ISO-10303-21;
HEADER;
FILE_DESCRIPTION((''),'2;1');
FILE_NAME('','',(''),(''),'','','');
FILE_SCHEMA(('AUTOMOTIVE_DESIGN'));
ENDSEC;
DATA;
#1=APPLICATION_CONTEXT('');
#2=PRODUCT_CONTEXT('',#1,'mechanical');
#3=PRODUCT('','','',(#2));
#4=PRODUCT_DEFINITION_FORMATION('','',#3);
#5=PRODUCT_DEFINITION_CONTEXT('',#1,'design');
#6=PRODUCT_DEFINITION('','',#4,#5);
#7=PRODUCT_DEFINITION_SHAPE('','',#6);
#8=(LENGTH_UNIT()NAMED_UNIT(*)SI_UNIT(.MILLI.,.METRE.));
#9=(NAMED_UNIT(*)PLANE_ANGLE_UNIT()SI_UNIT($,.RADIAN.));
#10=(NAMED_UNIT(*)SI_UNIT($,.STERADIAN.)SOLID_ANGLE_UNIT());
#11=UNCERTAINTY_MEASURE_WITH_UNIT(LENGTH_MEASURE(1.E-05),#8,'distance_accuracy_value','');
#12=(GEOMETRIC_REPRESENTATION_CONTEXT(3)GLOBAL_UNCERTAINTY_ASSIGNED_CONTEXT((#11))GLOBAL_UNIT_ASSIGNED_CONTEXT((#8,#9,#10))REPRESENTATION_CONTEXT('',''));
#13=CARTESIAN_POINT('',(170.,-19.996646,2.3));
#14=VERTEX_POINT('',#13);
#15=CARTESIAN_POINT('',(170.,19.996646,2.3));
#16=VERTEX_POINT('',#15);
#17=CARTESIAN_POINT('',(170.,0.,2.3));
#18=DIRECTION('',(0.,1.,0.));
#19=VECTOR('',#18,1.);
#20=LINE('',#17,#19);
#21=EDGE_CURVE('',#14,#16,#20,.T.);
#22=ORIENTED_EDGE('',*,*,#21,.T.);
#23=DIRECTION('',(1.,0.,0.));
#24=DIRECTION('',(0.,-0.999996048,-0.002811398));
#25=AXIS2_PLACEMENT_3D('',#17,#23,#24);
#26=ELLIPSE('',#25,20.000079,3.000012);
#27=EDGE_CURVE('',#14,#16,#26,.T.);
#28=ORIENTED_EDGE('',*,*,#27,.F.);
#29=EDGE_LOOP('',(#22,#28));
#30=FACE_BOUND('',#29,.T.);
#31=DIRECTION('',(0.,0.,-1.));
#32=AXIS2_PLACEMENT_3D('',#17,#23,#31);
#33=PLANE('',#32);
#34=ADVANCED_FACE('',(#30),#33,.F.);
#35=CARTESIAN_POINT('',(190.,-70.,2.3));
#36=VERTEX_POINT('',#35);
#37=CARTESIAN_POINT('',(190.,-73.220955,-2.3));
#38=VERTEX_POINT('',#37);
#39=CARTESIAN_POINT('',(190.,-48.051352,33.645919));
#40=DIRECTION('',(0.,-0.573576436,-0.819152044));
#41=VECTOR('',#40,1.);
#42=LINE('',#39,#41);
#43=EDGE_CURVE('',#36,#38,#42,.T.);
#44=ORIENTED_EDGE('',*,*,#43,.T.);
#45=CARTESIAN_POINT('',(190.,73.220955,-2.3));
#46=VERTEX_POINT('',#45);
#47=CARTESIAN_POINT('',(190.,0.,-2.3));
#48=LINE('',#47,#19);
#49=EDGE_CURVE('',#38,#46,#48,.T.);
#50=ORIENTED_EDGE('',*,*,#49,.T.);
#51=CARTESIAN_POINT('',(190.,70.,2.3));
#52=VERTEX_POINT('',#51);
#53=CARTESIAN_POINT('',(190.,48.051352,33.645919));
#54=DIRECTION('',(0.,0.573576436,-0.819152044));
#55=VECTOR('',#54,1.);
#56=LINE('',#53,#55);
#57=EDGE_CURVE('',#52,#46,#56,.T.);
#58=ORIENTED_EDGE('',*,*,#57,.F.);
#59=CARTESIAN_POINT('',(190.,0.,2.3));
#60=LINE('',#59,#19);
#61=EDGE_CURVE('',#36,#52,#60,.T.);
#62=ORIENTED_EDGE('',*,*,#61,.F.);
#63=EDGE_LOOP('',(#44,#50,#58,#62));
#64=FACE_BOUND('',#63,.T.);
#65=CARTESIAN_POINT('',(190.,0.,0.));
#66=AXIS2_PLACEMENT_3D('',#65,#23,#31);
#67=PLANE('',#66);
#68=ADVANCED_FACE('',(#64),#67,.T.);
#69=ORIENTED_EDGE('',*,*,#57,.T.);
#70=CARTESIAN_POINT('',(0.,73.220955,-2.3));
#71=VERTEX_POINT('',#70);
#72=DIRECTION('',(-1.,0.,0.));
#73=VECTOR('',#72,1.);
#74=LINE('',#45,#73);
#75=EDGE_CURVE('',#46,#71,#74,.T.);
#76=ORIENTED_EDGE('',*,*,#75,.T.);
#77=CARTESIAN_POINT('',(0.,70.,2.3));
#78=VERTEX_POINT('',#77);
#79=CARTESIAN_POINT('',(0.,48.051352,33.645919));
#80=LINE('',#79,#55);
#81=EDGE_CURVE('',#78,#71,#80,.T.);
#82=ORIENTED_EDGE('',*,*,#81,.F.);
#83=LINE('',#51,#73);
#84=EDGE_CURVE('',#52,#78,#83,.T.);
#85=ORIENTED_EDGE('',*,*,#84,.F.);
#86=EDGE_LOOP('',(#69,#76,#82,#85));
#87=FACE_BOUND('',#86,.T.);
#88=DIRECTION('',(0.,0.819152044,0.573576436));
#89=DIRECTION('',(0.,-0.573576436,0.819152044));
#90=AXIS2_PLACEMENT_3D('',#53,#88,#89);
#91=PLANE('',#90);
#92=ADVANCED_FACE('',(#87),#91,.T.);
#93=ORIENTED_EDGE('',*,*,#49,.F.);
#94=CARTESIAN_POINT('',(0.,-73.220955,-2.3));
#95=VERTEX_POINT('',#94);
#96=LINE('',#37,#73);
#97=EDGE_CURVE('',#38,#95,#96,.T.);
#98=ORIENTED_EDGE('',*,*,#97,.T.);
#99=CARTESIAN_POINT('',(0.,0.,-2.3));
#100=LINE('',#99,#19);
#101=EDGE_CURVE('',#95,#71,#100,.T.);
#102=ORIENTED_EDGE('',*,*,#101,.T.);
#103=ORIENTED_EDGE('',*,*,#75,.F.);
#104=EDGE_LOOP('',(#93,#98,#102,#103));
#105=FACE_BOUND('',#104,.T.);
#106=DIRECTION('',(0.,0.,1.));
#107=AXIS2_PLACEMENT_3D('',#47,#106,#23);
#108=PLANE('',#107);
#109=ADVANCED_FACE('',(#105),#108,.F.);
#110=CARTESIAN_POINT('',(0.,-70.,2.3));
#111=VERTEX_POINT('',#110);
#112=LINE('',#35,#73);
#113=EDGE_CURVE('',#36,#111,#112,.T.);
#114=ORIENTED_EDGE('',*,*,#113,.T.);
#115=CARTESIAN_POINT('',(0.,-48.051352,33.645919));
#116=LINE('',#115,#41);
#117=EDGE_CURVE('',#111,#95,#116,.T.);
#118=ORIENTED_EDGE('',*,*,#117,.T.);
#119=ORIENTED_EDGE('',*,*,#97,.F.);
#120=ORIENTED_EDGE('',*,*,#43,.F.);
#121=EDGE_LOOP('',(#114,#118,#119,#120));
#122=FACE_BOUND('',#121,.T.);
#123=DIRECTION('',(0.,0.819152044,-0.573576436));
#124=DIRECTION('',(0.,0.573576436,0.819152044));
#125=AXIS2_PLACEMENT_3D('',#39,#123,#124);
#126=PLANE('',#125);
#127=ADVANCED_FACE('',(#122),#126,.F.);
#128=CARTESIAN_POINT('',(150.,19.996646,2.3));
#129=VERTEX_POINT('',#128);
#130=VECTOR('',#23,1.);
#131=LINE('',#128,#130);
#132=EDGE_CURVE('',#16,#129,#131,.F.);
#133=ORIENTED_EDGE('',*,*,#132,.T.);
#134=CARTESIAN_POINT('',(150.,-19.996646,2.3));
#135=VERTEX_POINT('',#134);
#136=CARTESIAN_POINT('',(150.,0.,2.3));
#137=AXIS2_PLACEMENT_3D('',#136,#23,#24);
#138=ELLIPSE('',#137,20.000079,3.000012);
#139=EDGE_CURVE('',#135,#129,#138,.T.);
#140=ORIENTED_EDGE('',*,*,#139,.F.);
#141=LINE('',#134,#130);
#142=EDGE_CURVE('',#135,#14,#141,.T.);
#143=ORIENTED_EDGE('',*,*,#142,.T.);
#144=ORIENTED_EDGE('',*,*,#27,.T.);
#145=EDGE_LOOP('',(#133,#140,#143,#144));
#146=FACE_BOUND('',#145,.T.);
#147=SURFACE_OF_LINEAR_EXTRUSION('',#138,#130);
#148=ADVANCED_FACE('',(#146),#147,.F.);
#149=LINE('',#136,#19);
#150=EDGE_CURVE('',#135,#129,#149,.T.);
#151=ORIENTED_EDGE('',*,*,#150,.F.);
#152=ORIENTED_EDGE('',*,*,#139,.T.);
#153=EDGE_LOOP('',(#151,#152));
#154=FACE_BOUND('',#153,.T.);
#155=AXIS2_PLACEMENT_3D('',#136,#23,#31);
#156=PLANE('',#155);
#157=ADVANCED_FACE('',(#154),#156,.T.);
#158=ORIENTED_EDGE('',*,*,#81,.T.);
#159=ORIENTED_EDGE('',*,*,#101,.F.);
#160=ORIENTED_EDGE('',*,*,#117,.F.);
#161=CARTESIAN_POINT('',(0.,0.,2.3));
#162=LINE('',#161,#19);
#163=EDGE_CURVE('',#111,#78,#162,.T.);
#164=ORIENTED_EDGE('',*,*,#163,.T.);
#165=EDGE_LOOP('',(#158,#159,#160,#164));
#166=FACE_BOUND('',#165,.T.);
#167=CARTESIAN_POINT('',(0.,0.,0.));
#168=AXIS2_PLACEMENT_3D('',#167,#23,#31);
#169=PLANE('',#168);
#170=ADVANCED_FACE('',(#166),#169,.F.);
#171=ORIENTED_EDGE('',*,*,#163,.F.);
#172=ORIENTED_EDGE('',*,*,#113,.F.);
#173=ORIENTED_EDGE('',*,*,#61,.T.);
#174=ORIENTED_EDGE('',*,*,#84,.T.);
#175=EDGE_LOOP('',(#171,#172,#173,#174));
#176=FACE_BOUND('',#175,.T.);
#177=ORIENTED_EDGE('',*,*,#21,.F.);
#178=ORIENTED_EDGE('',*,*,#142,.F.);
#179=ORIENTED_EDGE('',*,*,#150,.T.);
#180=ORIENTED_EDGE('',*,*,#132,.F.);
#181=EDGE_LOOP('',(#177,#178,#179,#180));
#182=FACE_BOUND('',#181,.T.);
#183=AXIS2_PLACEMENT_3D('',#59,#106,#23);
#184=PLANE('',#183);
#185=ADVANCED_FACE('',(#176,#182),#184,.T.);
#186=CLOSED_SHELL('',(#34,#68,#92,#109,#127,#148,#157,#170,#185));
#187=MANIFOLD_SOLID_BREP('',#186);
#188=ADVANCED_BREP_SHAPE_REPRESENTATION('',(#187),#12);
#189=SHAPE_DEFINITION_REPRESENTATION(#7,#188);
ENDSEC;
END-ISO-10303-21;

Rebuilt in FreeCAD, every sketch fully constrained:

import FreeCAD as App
import Part
import Sketcher
Q = App.Units.Quantity

doc = App.newDocument("Part")
body = doc.addObject("PartDesign::Body", "Body")

# Sketch on YZ plane
sketch1 = body.newObject("Sketcher::SketchObject", "Sketch")
sketch1.AttachmentSupport = (doc.getObject("YZ_Plane"), [""])
sketch1.MapMode = "FlatFace"
sketch1.addGeometry(Part.LineSegment(App.Vector(70, 2, 0), App.Vector(-70, 2, 0)), False)
sketch1.addGeometry(Part.LineSegment(App.Vector(-70, 2, 0), App.Vector(-73, -2, 0)), False)
sketch1.addGeometry(Part.LineSegment(App.Vector(-73, -2, 0), App.Vector(73, -2, 0)), False)
sketch1.addGeometry(Part.LineSegment(App.Vector(73, -2, 0), App.Vector(70, 2, 0)), False)
sketch1.addConstraint(Sketcher.Constraint("Coincident", 0, 2, 1, 1))
sketch1.addConstraint(Sketcher.Constraint("Coincident", 1, 2, 2, 1))
sketch1.addConstraint(Sketcher.Constraint("Coincident", 2, 2, 3, 1))
sketch1.addConstraint(Sketcher.Constraint("Coincident", 3, 2, 0, 1))
sketch1.addConstraint(Sketcher.Constraint("Horizontal", 0))
sketch1.addConstraint(Sketcher.Constraint("Horizontal", 2))
sketch1.addConstraint(Sketcher.Constraint("Equal", 1, 3))
sketch1.addConstraint(Sketcher.Constraint("DistanceX", 0, 2, 0, 1, 140.0))
sketch1.addConstraint(Sketcher.Constraint("Angle", 1, Q("-125 deg")))
sketch1.addConstraint(Sketcher.Constraint("DistanceX", 0, 2, -1, 1, 70.0))
sketch1.addConstraint(Sketcher.Constraint("DistanceY", -1, 1, 0, 2, 2.3))
sketch1.addConstraint(Sketcher.Constraint("DistanceY", 1, 2, -1, 1, 2.3))
pad1 = body.newObject("PartDesign::Pad", "Pad")
pad1.Profile = sketch1
pad1.Length = 190

# Sketch on YZ plane
sketch2 = body.newObject("Sketcher::SketchObject", "Sketch001")
sketch2.AttachmentSupport = (doc.getObject("YZ_Plane"), [""])
sketch2.MapMode = "FlatFace"
sketch2.AttachmentOffset = App.Placement(App.Vector(0, 0, 170), App.Rotation())
sketch2.addGeometry(Part.Ellipse(App.Vector(-20, 2.243772, 0), App.Vector(0.008434, -0.7, 0), App.Vector(0, 2.3, 0)), False)
sketch2.addConstraint(Sketcher.Constraint("Block", 0))
pocket1 = body.newObject("PartDesign::Pocket", "Pocket")
pocket1.Profile = sketch2
pocket1.Length = 20

doc.recompute()
